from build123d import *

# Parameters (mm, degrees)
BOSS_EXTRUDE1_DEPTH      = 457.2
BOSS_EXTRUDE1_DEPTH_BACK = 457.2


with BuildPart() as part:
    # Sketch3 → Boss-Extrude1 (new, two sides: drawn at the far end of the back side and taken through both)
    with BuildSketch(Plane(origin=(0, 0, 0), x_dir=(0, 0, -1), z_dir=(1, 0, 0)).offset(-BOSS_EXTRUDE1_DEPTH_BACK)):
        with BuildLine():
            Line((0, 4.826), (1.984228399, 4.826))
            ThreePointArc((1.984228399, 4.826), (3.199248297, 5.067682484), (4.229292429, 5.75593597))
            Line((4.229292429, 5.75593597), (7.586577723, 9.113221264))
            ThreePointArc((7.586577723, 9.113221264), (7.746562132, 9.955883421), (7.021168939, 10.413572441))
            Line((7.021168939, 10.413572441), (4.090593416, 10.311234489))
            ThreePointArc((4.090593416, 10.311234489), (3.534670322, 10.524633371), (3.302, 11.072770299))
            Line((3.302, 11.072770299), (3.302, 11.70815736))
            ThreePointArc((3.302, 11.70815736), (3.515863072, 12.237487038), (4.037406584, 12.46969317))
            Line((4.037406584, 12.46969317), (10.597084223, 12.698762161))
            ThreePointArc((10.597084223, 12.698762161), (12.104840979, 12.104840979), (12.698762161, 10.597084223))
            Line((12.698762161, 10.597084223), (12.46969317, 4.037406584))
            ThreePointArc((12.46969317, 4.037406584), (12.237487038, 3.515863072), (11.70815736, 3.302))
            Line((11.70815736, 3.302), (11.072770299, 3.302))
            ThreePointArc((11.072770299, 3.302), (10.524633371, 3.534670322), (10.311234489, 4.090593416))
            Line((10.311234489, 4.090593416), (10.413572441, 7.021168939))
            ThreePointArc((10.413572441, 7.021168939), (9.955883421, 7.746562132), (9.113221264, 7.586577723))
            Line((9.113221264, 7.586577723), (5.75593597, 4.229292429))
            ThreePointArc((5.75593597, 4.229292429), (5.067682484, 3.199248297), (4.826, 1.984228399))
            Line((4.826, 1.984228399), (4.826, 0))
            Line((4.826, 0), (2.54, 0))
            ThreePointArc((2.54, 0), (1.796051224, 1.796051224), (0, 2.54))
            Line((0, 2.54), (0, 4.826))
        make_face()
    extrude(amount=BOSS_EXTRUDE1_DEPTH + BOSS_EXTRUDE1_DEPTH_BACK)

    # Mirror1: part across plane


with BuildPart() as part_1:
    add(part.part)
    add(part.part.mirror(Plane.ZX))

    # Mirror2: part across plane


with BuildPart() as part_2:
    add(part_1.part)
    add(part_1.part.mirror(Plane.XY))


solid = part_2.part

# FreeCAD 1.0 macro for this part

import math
import FreeCAD as App
import Part
import Sketcher
Q = App.Units.Quantity

doc = App.newDocument("Part")
body = doc.addObject("PartDesign::Body", "Body")

# Sketch on YZ plane
sketch1 = doc.addObject("Sketcher::SketchObject", "Sketch")
body.addObject(sketch1)
sketch1.AttachmentSupport = (doc.YZ_Plane, [""])
sketch1.MapMode = "FlatFace"
sketch1.addGeometry([
    Part.LineSegment(App.Vector(4.8, -2, 0), App.Vector(4.8, 0, 0)),  # 0
    Part.LineSegment(App.Vector(4.8, 0, 0), App.Vector(2.5, 0, 0)),  # 1
    Part.ArcOfCircle(Part.Circle(App.Vector(0, 0, 0), App.Vector(0, 0, 1), 2.5), math.radians(-90), math.radians(0)),  # 2
    Part.LineSegment(App.Vector(0, -2.5, 0), App.Vector(0, -4.8, 0)),  # 3
    Part.LineSegment(App.Vector(0, -4.8, 0), App.Vector(2, -4.8, 0)),  # 4
    Part.ArcOfCircle(Part.Circle(App.Vector(2, -8, 0), App.Vector(0, 0, 1), 3.2), math.radians(45), math.radians(90)),  # 5
    Part.LineSegment(App.Vector(4.2, -5.8, 0), App.Vector(7.6, -9.1, 0)),  # 6
    Part.ArcOfCircle(Part.Circle(App.Vector(7, -9.7, 0), App.Vector(0, 0, 1), 0.8), math.radians(-92), math.radians(45)),  # 7
    Part.LineSegment(App.Vector(7, -10.4, 0), App.Vector(4.1, -10.3, 0)),  # 8
    Part.ArcOfCircle(Part.Circle(App.Vector(4.1, -11.1, 0), App.Vector(0, 0, 1), 0.8), math.radians(88), math.radians(180)),  # 9
    Part.LineSegment(App.Vector(3.3, -11.1, 0), App.Vector(3.3, -11.7, 0)),  # 10
    Part.ArcOfCircle(Part.Circle(App.Vector(4.1, -11.7, 0), App.Vector(0, 0, 1), 0.8), math.radians(180), math.radians(268)),  # 11
    Part.LineSegment(App.Vector(4, -12.5, 0), App.Vector(10.6, -12.7, 0)),  # 12
    Part.ArcOfCircle(Part.Circle(App.Vector(10.7, -10.7, 0), App.Vector(0, 0, 1), 2), math.radians(-92), math.radians(2)),  # 13
    Part.LineSegment(App.Vector(12.7, -10.6, 0), App.Vector(12.5, -4, 0)),  # 14
    Part.ArcOfCircle(Part.Circle(App.Vector(11.7, -4.1, 0), App.Vector(0, 0, 1), 0.8), math.radians(2), math.radians(90)),  # 15
    Part.LineSegment(App.Vector(11.7, -3.3, 0), App.Vector(11.1, -3.3, 0)),  # 16
    Part.ArcOfCircle(Part.Circle(App.Vector(11.1, -4.1, 0), App.Vector(0, 0, 1), 0.8), math.radians(90), math.radians(182)),  # 17
    Part.LineSegment(App.Vector(10.3, -4.1, 0), App.Vector(10.4, -7, 0)),  # 18
    Part.ArcOfCircle(Part.Circle(App.Vector(9.7, -7, 0), App.Vector(0, 0, 1), 0.8), math.radians(-135), math.radians(2)),  # 19
    Part.LineSegment(App.Vector(9.1, -7.6, 0), App.Vector(5.8, -4.2, 0)),  # 20
    Part.ArcOfCircle(Part.Circle(App.Vector(8, -2, 0), App.Vector(0, 0, 1), 3.2), math.radians(180), math.radians(225)),  # 21
], False)
sketch1.addConstraint([
    Sketcher.Constraint("Coincident", 0, 2, 1, 1),
    Sketcher.Constraint("Coincident", 1, 2, 2, 2),
    Sketcher.Constraint("Coincident", 2, 1, 3, 1),
    Sketcher.Constraint("Coincident", 3, 2, 4, 1),
    Sketcher.Constraint("Tangent", 4, 2, 5, 2),
    Sketcher.Constraint("Tangent", 5, 1, 6, 1),
    Sketcher.Constraint("Tangent", 6, 2, 7, 2),
    Sketcher.Constraint("Tangent", 7, 1, 8, 1),
    Sketcher.Constraint("Tangent", 8, 2, 9, 1),
    Sketcher.Constraint("Tangent", 9, 2, 10, 1),
    Sketcher.Constraint("Tangent", 10, 2, 11, 1),
    Sketcher.Constraint("Tangent", 11, 2, 12, 1),
    Sketcher.Constraint("Tangent", 12, 2, 13, 1),
    Sketcher.Constraint("Tangent", 13, 2, 14, 1),
    Sketcher.Constraint("Tangent", 14, 2, 15, 1),
    Sketcher.Constraint("Tangent", 15, 2, 16, 1),
    Sketcher.Constraint("Tangent", 16, 2, 17, 1),
    Sketcher.Constraint("Tangent", 17, 2, 18, 1),
    Sketcher.Constraint("Tangent", 18, 2, 19, 2),
    Sketcher.Constraint("Tangent", 19, 1, 20, 1),
    Sketcher.Constraint("Tangent", 20, 2, 21, 2),
    Sketcher.Constraint("Tangent", 21, 1, 0, 1),
    Sketcher.Constraint("Vertical", 0),
    Sketcher.Constraint("Horizontal", 1),
    Sketcher.Constraint("Vertical", 3),
    Sketcher.Constraint("Horizontal", 4),
    Sketcher.Constraint("Vertical", 10),
    Sketcher.Constraint("Horizontal", 16),
    Sketcher.Constraint("Coincident", 2, 3, -1, 1),
    Sketcher.Constraint("Equal", 7, 9),
    Sketcher.Constraint("Equal", 9, 11),
    Sketcher.Constraint("Equal", 11, 15),
    Sketcher.Constraint("Equal", 15, 17),
    Sketcher.Constraint("Equal", 17, 19),
    Sketcher.Constraint("Equal", 5, 21),
    Sketcher.Constraint("PointOnObject", 0, 2, -1),
    Sketcher.Constraint("PointOnObject", 2, 1, -2),
    Sketcher.Constraint("Parallel", 8, 12),
    Sketcher.Constraint("Parallel", 14, 18),
    Sketcher.Constraint("Parallel", 6, 20),
    Sketcher.Constraint("Equal", 4, 0),
    Sketcher.Constraint("Equal", 1, 3),
    Sketcher.Constraint("Equal", 16, 10),
    Sketcher.Constraint("Equal", 12, 14),
    Sketcher.Constraint("Equal", 8, 18),
    Sketcher.Constraint("Equal", 6, 20),
    Sketcher.Constraint("Radius", 2, Q("0.1 in")),
    Sketcher.Constraint("Radius", 7, Q("0.03 in")),
    Sketcher.Constraint("Radius", 13, Q("0.08 in")),
    Sketcher.Constraint("Angle", 6, Q("-45 deg")),
    Sketcher.Constraint("Angle", 8, Q("178 deg")),
    Sketcher.Constraint("Radius", 5, Q("0.125 in")),
    Sketcher.Constraint("DistanceX", 1, 2, 1, 1, Q("0.09 in")),
    Sketcher.Constraint("DistanceX", -1, 1, 9, 3, Q("0.16 in")),
    Sketcher.Constraint("DistanceX", -1, 1, 13, 3, Q("0.42 in")),
    Sketcher.Constraint("DistanceX", 4, 1, 4, 2, 1.984228),
    Sketcher.Constraint("DistanceY", 7, 3, 5, 1, 3.896101),
])
pad1 = doc.addObject("PartDesign::Pad", "Pad")
body.addObject(pad1)
pad1.Profile = sketch1
pad1.Type = "TwoLengths"
pad1.Length = Q("18 in")
pad1.Length2 = Q("18 in")
body2 = doc.addObject("PartDesign::Body", "Body001")
doc.recompute()

body2.BaseFeature = body
doc.recompute()

mirroring = doc.addObject("Part::Mirroring", "Mirroring")
mirroring.Source = body
mirroring.Base = App.Vector(0, 0, 0)
mirroring.Normal = App.Vector(0, 1, 0)
body3 = doc.addObject("PartDesign::Body", "Body002")
body3.BaseFeature = mirroring
boolean = doc.addObject("PartDesign::Boolean", "Boolean")
body2.addObject(boolean)
boolean.Type = "Fuse"
boolean.addObjects([body3])
doc.recompute()
body4 = doc.addObject("PartDesign::Body", "Body003")
doc.recompute()

body4.BaseFeature = body2
doc.recompute()

mirroring2 = doc.addObject("Part::Mirroring", "Mirroring001")
mirroring2.Source = body2
mirroring2.Base = App.Vector(0, 0, 0)
mirroring2.Normal = App.Vector(0, 0, 1)
body5 = doc.addObject("PartDesign::Body", "Body004")
body5.BaseFeature = mirroring2
boolean2 = doc.addObject("PartDesign::Boolean", "Boolean001")
body4.addObject(boolean2)
boolean2.Type = "Fuse"
boolean2.addObjects([body5])
doc.recompute()
mirroring.Visibility = False
mirroring2.Visibility = False

doc.recompute()
